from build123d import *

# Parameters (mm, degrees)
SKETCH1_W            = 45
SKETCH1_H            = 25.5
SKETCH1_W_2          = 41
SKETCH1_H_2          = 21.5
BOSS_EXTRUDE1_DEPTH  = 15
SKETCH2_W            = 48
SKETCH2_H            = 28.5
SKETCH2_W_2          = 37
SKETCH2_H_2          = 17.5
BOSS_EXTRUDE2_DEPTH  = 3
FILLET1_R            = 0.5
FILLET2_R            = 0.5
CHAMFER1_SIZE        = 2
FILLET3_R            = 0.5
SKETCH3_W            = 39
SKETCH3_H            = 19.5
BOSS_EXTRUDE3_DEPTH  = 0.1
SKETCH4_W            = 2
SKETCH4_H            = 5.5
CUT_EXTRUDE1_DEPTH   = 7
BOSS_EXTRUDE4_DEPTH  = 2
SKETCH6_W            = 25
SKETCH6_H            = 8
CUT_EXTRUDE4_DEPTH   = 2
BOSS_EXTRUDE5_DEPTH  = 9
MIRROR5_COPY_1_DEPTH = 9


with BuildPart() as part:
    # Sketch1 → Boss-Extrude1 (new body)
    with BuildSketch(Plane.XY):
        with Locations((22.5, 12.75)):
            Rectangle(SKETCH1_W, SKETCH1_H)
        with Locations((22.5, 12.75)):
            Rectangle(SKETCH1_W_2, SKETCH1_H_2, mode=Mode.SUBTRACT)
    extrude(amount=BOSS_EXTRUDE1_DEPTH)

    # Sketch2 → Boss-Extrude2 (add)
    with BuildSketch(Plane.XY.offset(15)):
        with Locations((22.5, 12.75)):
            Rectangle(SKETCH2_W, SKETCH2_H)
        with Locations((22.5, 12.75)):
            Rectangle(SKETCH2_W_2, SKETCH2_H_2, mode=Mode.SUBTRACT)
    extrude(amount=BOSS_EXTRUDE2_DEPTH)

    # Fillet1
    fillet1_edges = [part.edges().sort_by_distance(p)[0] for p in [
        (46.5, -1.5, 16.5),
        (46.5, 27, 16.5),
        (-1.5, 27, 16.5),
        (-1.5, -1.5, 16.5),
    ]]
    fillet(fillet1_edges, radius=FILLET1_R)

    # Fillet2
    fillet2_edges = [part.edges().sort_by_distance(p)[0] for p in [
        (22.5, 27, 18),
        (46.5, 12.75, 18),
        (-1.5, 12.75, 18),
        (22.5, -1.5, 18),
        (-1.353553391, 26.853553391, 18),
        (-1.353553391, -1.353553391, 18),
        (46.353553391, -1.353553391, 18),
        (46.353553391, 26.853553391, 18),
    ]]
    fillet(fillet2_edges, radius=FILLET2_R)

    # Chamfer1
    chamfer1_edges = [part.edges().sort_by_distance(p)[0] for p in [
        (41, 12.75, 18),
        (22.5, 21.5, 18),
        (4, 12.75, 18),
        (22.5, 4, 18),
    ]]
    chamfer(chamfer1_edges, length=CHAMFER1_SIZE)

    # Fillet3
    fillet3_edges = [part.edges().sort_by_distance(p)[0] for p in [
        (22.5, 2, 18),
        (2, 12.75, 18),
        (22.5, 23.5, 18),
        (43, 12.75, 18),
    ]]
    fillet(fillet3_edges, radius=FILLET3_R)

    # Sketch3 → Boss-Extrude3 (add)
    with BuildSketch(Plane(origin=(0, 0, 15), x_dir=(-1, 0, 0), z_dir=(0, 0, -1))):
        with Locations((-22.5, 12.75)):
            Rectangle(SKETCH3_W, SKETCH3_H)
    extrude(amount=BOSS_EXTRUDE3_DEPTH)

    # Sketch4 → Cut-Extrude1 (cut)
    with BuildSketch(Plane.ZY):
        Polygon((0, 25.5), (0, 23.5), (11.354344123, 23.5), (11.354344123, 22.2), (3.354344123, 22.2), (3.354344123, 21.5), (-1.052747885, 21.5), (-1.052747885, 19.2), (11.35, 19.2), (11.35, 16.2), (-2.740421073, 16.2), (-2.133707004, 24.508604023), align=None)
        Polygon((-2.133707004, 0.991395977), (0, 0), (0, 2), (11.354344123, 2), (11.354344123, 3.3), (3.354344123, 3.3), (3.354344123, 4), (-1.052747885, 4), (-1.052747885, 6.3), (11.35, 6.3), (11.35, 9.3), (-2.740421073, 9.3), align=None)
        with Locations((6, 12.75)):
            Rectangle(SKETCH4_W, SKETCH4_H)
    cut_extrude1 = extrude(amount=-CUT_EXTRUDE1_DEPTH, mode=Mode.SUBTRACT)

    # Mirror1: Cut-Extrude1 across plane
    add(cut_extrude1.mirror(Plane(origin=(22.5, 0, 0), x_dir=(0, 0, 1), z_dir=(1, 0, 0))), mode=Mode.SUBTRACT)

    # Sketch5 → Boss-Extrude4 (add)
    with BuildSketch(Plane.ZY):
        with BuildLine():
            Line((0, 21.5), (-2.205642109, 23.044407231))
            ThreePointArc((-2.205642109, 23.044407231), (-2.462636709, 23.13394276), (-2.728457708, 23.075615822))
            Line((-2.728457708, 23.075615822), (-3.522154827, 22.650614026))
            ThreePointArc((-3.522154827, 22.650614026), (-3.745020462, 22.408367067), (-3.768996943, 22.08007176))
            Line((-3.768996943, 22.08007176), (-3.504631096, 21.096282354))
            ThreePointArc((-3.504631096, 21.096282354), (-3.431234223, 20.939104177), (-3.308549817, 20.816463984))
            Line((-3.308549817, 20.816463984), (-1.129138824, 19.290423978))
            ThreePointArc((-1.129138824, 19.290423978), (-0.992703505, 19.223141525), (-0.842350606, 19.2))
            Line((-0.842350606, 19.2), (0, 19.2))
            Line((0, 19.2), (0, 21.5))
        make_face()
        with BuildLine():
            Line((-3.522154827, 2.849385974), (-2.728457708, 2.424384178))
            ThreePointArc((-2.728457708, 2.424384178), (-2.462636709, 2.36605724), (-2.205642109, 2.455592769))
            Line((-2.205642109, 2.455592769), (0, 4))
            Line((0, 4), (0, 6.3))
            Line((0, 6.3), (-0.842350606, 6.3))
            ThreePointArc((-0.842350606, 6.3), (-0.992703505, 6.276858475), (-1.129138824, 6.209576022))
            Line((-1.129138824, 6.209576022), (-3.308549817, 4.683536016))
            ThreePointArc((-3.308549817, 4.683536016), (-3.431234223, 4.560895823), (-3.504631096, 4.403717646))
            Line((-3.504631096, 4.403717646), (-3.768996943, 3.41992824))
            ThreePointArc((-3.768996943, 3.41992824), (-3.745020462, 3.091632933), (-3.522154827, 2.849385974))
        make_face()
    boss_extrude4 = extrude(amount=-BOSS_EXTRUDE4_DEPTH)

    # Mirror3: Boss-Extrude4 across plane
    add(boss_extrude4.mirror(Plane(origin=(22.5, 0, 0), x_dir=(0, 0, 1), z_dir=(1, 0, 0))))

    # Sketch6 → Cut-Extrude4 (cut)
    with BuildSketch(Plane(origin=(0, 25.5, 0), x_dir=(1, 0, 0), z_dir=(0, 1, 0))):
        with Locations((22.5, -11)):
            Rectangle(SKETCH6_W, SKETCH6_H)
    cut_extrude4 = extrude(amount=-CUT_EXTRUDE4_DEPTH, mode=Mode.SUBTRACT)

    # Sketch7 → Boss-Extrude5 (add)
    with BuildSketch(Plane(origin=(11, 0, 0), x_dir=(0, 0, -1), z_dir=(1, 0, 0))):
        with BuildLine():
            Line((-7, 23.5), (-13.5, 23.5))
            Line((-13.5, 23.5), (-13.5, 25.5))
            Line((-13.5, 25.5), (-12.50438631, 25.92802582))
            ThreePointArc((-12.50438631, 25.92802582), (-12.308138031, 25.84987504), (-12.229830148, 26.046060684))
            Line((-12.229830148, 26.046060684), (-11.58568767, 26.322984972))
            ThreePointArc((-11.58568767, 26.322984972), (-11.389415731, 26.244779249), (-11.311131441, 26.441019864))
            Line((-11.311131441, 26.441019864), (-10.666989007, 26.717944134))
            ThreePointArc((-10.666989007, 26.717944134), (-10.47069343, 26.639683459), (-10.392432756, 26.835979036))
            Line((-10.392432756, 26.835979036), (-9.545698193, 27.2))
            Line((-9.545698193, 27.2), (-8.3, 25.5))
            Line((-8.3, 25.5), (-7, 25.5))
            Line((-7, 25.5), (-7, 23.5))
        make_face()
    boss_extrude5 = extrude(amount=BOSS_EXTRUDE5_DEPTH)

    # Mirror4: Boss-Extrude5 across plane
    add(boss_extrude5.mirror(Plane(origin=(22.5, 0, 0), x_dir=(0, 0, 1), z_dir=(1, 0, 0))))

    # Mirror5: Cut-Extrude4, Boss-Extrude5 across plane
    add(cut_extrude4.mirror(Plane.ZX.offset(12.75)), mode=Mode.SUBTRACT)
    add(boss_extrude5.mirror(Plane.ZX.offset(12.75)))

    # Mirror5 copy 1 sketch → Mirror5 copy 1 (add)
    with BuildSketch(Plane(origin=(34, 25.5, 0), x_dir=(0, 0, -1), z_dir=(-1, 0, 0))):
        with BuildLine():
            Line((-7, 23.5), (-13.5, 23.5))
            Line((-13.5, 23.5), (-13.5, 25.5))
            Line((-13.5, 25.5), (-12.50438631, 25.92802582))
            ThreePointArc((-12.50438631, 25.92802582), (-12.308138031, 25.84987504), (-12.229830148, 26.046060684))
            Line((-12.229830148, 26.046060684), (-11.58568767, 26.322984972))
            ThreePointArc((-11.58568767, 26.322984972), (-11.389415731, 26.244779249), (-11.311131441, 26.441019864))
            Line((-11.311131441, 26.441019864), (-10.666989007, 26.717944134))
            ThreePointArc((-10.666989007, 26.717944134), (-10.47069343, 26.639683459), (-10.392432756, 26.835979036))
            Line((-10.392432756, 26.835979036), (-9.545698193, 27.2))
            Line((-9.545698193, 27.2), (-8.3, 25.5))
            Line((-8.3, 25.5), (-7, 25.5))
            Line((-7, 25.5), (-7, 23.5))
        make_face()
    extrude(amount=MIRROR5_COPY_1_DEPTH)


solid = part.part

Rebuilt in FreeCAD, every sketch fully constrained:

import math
import FreeCAD as App
import Part
import Sketcher

V = App.Vector
Q = App.Units.Quantity


def edges_at(feature, points):
    """Names of the edges that pass closest to the given points."""
    edges = feature.Shape.Edges
    near = lambda p: min(range(len(edges)), key=lambda i: edges[i].distToShape(Part.Vertex(*p))[0])
    return sorted({f"Edge{near(p) + 1}" for p in points})

doc = App.newDocument("Part")
body = doc.addObject("PartDesign::Body", "Body")

# Sketch on XY plane
sketch1 = body.newObject("Sketcher::SketchObject", "Sketch")
sketch1.AttachmentSupport = (doc.getObject("XY_Plane"), [""])
sketch1.MapMode = "FlatFace"
sketch1.addGeometry(Part.LineSegment(V(0, 25.5, 0), V(0, 0, 0)), False)
sketch1.addGeometry(Part.LineSegment(V(0, 0, 0), V(45, 0, 0)), False)
sketch1.addGeometry(Part.LineSegment(V(45, 0, 0), V(45, 25.5, 0)), False)
sketch1.addGeometry(Part.LineSegment(V(45, 25.5, 0), V(0, 25.5, 0)), False)
sketch1.addGeometry(Part.LineSegment(V(43, 2, 0), V(2, 2, 0)), False)
sketch1.addGeometry(Part.LineSegment(V(2, 2, 0), V(2, 23.5, 0)), False)
sketch1.addGeometry(Part.LineSegment(V(2, 23.5, 0), V(43, 23.5, 0)), False)
sketch1.addGeometry(Part.LineSegment(V(43, 23.5, 0), V(43, 2, 0)), False)
sketch1.addConstraint(Sketcher.Constraint("Coincident", 0, 2, 1, 1))
sketch1.addConstraint(Sketcher.Constraint("Coincident", 1, 2, 2, 1))
sketch1.addConstraint(Sketcher.Constraint("Coincident", 2, 2, 3, 1))
sketch1.addConstraint(Sketcher.Constraint("Coincident", 3, 2, 0, 1))
sketch1.addConstraint(Sketcher.Constraint("Coincident", 4, 2, 5, 1))
sketch1.addConstraint(Sketcher.Constraint("Coincident", 5, 2, 6, 1))
sketch1.addConstraint(Sketcher.Constraint("Coincident", 6, 2, 7, 1))
sketch1.addConstraint(Sketcher.Constraint("Coincident", 7, 2, 4, 1))
sketch1.addConstraint(Sketcher.Constraint("Vertical", 0))
sketch1.addConstraint(Sketcher.Constraint("Horizontal", 1))
sketch1.addConstraint(Sketcher.Constraint("Vertical", 2))
sketch1.addConstraint(Sketcher.Constraint("Horizontal", 3))
sketch1.addConstraint(Sketcher.Constraint("Horizontal", 4))
sketch1.addConstraint(Sketcher.Constraint("Vertical", 5))
sketch1.addConstraint(Sketcher.Constraint("Horizontal", 6))
sketch1.addConstraint(Sketcher.Constraint("Vertical", 7))
sketch1.addConstraint(Sketcher.Constraint("Coincident", 0, 2, -1, 1))
sketch1.addConstraint(Sketcher.Constraint("DistanceX", 1, 1, 1, 2, Q("45 mm")))
sketch1.addConstraint(Sketcher.Constraint("DistanceX", 4, 2, 4, 1, Q("41 mm")))
sketch1.addConstraint(Sketcher.Constraint("DistanceY", 0, 2, 0, 1, Q("25.5 mm")))
sketch1.addConstraint(Sketcher.Constraint("DistanceY", 5, 1, 5, 2, Q("21.5 mm")))
sketch1.addConstraint(Sketcher.Constraint("DistanceX", -1, 1, 4, 2, Q("2 mm")))
sketch1.addConstraint(Sketcher.Constraint("DistanceY", -1, 1, 4, 2, Q("2 mm")))
pad1 = body.newObject("PartDesign::Pad", "Pad")
pad1.Profile = sketch1
pad1.Length = 15

# Sketch on XY plane
sketch2 = body.newObject("Sketcher::SketchObject", "Sketch001")
sketch2.AttachmentSupport = (doc.getObject("XY_Plane"), [""])
sketch2.MapMode = "FlatFace"
sketch2.AttachmentOffset = App.Placement(V(0, 0, 15), App.Rotation())
sketch2.addGeometry(Part.LineSegment(V(-1.5, 27, 0), V(-1.5, -1.5, 0)), False)
sketch2.addGeometry(Part.LineSegment(V(-1.5, -1.5, 0), V(46.5, -1.5, 0)), False)
sketch2.addGeometry(Part.LineSegment(V(46.5, -1.5, 0), V(46.5, 27, 0)), False)
sketch2.addGeometry(Part.LineSegment(V(46.5, 27, 0), V(-1.5, 27, 0)), False)
sketch2.addGeometry(Part.LineSegment(V(41, 4, 0), V(4, 4, 0)), False)
sketch2.addGeometry(Part.LineSegment(V(4, 4, 0), V(4, 21.5, 0)), False)
sketch2.addGeometry(Part.LineSegment(V(4, 21.5, 0), V(41, 21.5, 0)), False)
sketch2.addGeometry(Part.LineSegment(V(41, 21.5, 0), V(41, 4, 0)), False)
sketch2.addConstraint(Sketcher.Constraint("Coincident", 0, 2, 1, 1))
sketch2.addConstraint(Sketcher.Constraint("Coincident", 1, 2, 2, 1))
sketch2.addConstraint(Sketcher.Constraint("Coincident", 2, 2, 3, 1))
sketch2.addConstraint(Sketcher.Constraint("Coincident", 3, 2, 0, 1))
sketch2.addConstraint(Sketcher.Constraint("Coincident", 4, 2, 5, 1))
sketch2.addConstraint(Sketcher.Constraint("Coincident", 5, 2, 6, 1))
sketch2.addConstraint(Sketcher.Constraint("Coincident", 6, 2, 7, 1))
sketch2.addConstraint(Sketcher.Constraint("Coincident", 7, 2, 4, 1))
sketch2.addConstraint(Sketcher.Constraint("Vertical", 0))
sketch2.addConstraint(Sketcher.Constraint("Horizontal", 1))
sketch2.addConstraint(Sketcher.Constraint("Vertical", 2))
sketch2.addConstraint(Sketcher.Constraint("Horizontal", 3))
sketch2.addConstraint(Sketcher.Constraint("Horizontal", 4))
sketch2.addConstraint(Sketcher.Constraint("Vertical", 5))
sketch2.addConstraint(Sketcher.Constraint("Horizontal", 6))
sketch2.addConstraint(Sketcher.Constraint("Vertical", 7))
sketch2.addConstraint(Sketcher.Constraint("DistanceX", 1, 1, 1, 2, Q("48 mm")))
sketch2.addConstraint(Sketcher.Constraint("DistanceX", 4, 2, 4, 1, Q("37 mm")))
sketch2.addConstraint(Sketcher.Constraint("DistanceY", 0, 2, 0, 1, Q("28.5 mm")))
sketch2.addConstraint(Sketcher.Constraint("DistanceY", 5, 1, 5, 2, Q("17.5 mm")))
sketch2.addConstraint(Sketcher.Constraint("DistanceY", -1, 1, 2, 2, Q("27 mm")))
sketch2.addConstraint(Sketcher.Constraint("DistanceX", -1, 1, 4, 2, Q("4 mm")))
sketch2.addConstraint(Sketcher.Constraint("DistanceY", -1, 1, 4, 2, Q("4 mm")))
sketch2.addConstraint(Sketcher.Constraint("DistanceX", 0, 2, -1, 1, Q("1.5 mm")))
pad2 = body.newObject("PartDesign::Pad", "Pad001")
pad2.Profile = sketch2
pad2.Length = 3
doc.recompute()

fillet = body.newObject("PartDesign::Fillet", "Fillet")
fillet.Base = (pad2, edges_at(pad2, [
    (46.5, -1.5, 16.5),
    (46.5, 27, 16.5),
    (-1.5, 27, 16.5),
    (-1.5, -1.5, 16.5),
]))
fillet.Radius = 0.5
doc.recompute()

fillet2 = body.newObject("PartDesign::Fillet", "Fillet001")
fillet2.Base = (fillet, edges_at(fillet, [
    (22.5, 27, 18),
    (46.5, 12.75, 18),
    (-1.5, 12.75, 18),
    (22.5, -1.5, 18),
    (-1.354, 26.854, 18),
    (-1.354, -1.354, 18),
    (46.354, -1.354, 18),
    (46.354, 26.854, 18),
]))
fillet2.Radius = 0.5
doc.recompute()

chamfer = body.newObject("PartDesign::Chamfer", "Chamfer")
chamfer.Base = (fillet2, edges_at(fillet2, [
    (41, 12.75, 18),
    (22.5, 21.5, 18),
    (4, 12.75, 18),
    (22.5, 4, 18),
]))
chamfer.Size = 2
doc.recompute()

fillet3 = body.newObject("PartDesign::Fillet", "Fillet002")
fillet3.Base = (chamfer, edges_at(chamfer, [
    (22.5, 2, 18),
    (2, 12.75, 18),
    (22.5, 23.5, 18),
    (43, 12.75, 18),
]))
fillet3.Radius = 0.5

# Sketch on XY plane
sketch3 = body.newObject("Sketcher::SketchObject", "Sketch002")
sketch3.AttachmentSupport = (doc.getObject("XY_Plane"), [""])
sketch3.MapMode = "FlatFace"
sketch3.AttachmentOffset = App.Placement(V(0, 0, 15), App.Rotation())
sketch3.addGeometry(Part.LineSegment(V(42, 22.5, 0), V(42, 3, 0)), False)
sketch3.addGeometry(Part.LineSegment(V(42, 3, 0), V(3, 3, 0)), False)
sketch3.addGeometry(Part.LineSegment(V(3, 3, 0), V(3, 22.5, 0)), False)
sketch3.addGeometry(Part.LineSegment(V(3, 22.5, 0), V(42, 22.5, 0)), False)
sketch3.addConstraint(Sketcher.Constraint("Coincident", 0, 2, 1, 1))
sketch3.addConstraint(Sketcher.Constraint("Coincident", 1, 2, 2, 1))
sketch3.addConstraint(Sketcher.Constraint("Coincident", 2, 2, 3, 1))
sketch3.addConstraint(Sketcher.Constraint("Coincident", 3, 2, 0, 1))
sketch3.addConstraint(Sketcher.Constraint("Vertical", 0))
sketch3.addConstraint(Sketcher.Constraint("Horizontal", 1))
sketch3.addConstraint(Sketcher.Constraint("Vertical", 2))
sketch3.addConstraint(Sketcher.Constraint("Horizontal", 3))
sketch3.addConstraint(Sketcher.Constraint("DistanceX", 1, 2, 1, 1, Q("39 mm")))
sketch3.addConstraint(Sketcher.Constraint("DistanceY", 0, 2, 0, 1, Q("19.5 mm")))
sketch3.addConstraint(Sketcher.Constraint("DistanceX", -1, 1, 0, 2, Q("42 mm")))
sketch3.addConstraint(Sketcher.Constraint("DistanceY", -1, 1, 0, 2, Q("3 mm")))
pad3 = body.newObject("PartDesign::Pad", "Pad002")
pad3.Profile = sketch3
pad3.Length = 0.1
pad3.Reversed = True

# Sketch on YZ plane
sketch4 = body.newObject("Sketcher::SketchObject", "Sketch003")
sketch4.AttachmentSupport = (doc.getObject("YZ_Plane"), [""])
sketch4.MapMode = "FlatFace"
sketch4.addGeometry(Part.LineSegment(V(23.5, 0, 0), V(25.5, 0, 0)), False)
sketch4.addGeometry(Part.LineSegment(V(25.5, 0, 0), V(24.508604, -2.133707, 0)), False)
sketch4.addGeometry(Part.LineSegment(V(24.508604, -2.133707, 0), V(16.2, -2.740421, 0)), False)
sketch4.addGeometry(Part.LineSegment(V(16.2, -2.740421, 0), V(16.2, 11.35, 0)), False)
sketch4.addGeometry(Part.LineSegment(V(16.2, 11.35, 0), V(19.2, 11.35, 0)), False)
sketch4.addGeometry(Part.LineSegment(V(19.2, 11.35, 0), V(19.2, -1.052748, 0)), False)
sketch4.addGeometry(Part.LineSegment(V(19.2, -1.052748, 0), V(21.5, -1.052748, 0)), False)
sketch4.addGeometry(Part.LineSegment(V(21.5, -1.052748, 0), V(21.5, 3.354344, 0)), False)
sketch4.addGeometry(Part.LineSegment(V(21.5, 3.354344, 0), V(22.2, 3.354344, 0)), False)
sketch4.addGeometry(Part.LineSegment(V(22.2, 3.354344, 0), V(22.2, 11.354344, 0)), False)
sketch4.addGeometry(Part.LineSegment(V(22.2, 11.354344, 0), V(23.5, 11.354344, 0)), False)
sketch4.addGeometry(Part.LineSegment(V(23.5, 11.354344, 0), V(23.5, 0, 0)), False)
sketch4.addGeometry(Part.LineSegment(V(0.991396, -2.133707, 0), V(0, 0, 0)), False)
sketch4.addGeometry(Part.LineSegment(V(0, 0, 0), V(2, 0, 0)), False)
sketch4.addGeometry(Part.LineSegment(V(2, 0, 0), V(2, 11.354344, 0)), False)
sketch4.addGeometry(Part.LineSegment(V(2, 11.354344, 0), V(3.3, 11.354344, 0)), False)
sketch4.addGeometry(Part.LineSegment(V(3.3, 11.354344, 0), V(3.3, 3.354344, 0)), False)
sketch4.addGeometry(Part.LineSegment(V(3.3, 3.354344, 0), V(4, 3.354344, 0)), False)
sketch4.addGeometry(Part.LineSegment(V(4, 3.354344, 0), V(4, -1.052748, 0)), False)
sketch4.addGeometry(Part.LineSegment(V(4, -1.052748, 0), V(6.3, -1.052748, 0)), False)
sketch4.addGeometry(Part.LineSegment(V(6.3, -1.052748, 0), V(6.3, 11.35, 0)), False)
sketch4.addGeometry(Part.LineSegment(V(6.3, 11.35, 0), V(9.3, 11.35, 0)), False)
sketch4.addGeometry(Part.LineSegment(V(9.3, 11.35, 0), V(9.3, -2.740421, 0)), False)
sketch4.addGeometry(Part.LineSegment(V(9.3, -2.740421, 0), V(0.991396, -2.133707, 0)), False)
sketch4.addGeometry(Part.LineSegment(V(15.5, 5, 0), V(10, 5, 0)), False)
sketch4.addGeometry(Part.LineSegment(V(10, 5, 0), V(10, 7, 0)), False)
sketch4.addGeometry(Part.LineSegment(V(10, 7, 0), V(15.5, 7, 0)), False)
sketch4.addGeometry(Part.LineSegment(V(15.5, 7, 0), V(15.5, 5, 0)), False)
sketch4.addConstraint(Sketcher.Constraint("Coincident", 0, 2, 1, 1))
sketch4.addConstraint(Sketcher.Constraint("Coincident", 1, 2, 2, 1))
sketch4.addConstraint(Sketcher.Constraint("Coincident", 2, 2, 3, 1))
sketch4.addConstraint(Sketcher.Constraint("Coincident", 3, 2, 4, 1))
sketch4.addConstraint(Sketcher.Constraint("Coincident", 4, 2, 5, 1))
sketch4.addConstraint(Sketcher.Constraint("Coincident", 5, 2, 6, 1))
sketch4.addConstraint(Sketcher.Constraint("Coincident", 6, 2, 7, 1))
sketch4.addConstraint(Sketcher.Constraint("Coincident", 7, 2, 8, 1))
sketch4.addConstraint(Sketcher.Constraint("Coincident", 8, 2, 9, 1))
sketch4.addConstraint(Sketcher.Constraint("Coincident", 9, 2, 10, 1))
sketch4.addConstraint(Sketcher.Constraint("Coincident", 10, 2, 11, 1))
sketch4.addConstraint(Sketcher.Constraint("Coincident", 11, 2, 0, 1))
sketch4.addConstraint(Sketcher.Constraint("Coincident", 12, 2, 13, 1))
sketch4.addConstraint(Sketcher.Constraint("Coincident", 13, 2, 14, 1))
sketch4.addConstraint(Sketcher.Constraint("Coincident", 14, 2, 15, 1))
sketch4.addConstraint(Sketcher.Constraint("Coincident", 15, 2, 16, 1))
sketch4.addConstraint(Sketcher.Constraint("Coincident", 16, 2, 17, 1))
sketch4.addConstraint(Sketcher.Constraint("Coincident", 17, 2, 18, 1))
sketch4.addConstraint(Sketcher.Constraint("Coincident", 18, 2, 19, 1))
sketch4.addConstraint(Sketcher.Constraint("Coincident", 19, 2, 20, 1))
sketch4.addConstraint(Sketcher.Constraint("Coincident", 20, 2, 21, 1))
sketch4.addConstraint(Sketcher.Constraint("Coincident", 21, 2, 22, 1))
sketch4.addConstraint(Sketcher.Constraint("Coincident", 22, 2, 23, 1))
sketch4.addConstraint(Sketcher.Constraint("Coincident", 23, 2, 12, 1))
sketch4.addConstraint(Sketcher.Constraint("Coincident", 24, 2, 25, 1))
sketch4.addConstraint(Sketcher.Constraint("Coincident", 25, 2, 26, 1))
sketch4.addConstraint(Sketcher.Constraint("Coincident", 26, 2, 27, 1))
sketch4.addConstraint(Sketcher.Constraint("Coincident", 27, 2, 24, 1))
sketch4.addConstraint(Sketcher.Constraint("Horizontal", 0))
sketch4.addConstraint(Sketcher.Constraint("Vertical", 3))
sketch4.addConstraint(Sketcher.Constraint("Horizontal", 4))
sketch4.addConstraint(Sketcher.Constraint("Vertical", 5))
sketch4.addConstraint(Sketcher.Constraint("Horizontal", 6))
sketch4.addConstraint(Sketcher.Constraint("Vertical", 7))
sketch4.addConstraint(Sketcher.Constraint("Horizontal", 8))
sketch4.addConstraint(Sketcher.Constraint("Vertical", 9))
sketch4.addConstraint(Sketcher.Constraint("Horizontal", 10))
sketch4.addConstraint(Sketcher.Constraint("Vertical", 11))
sketch4.addConstraint(Sketcher.Constraint("Horizontal", 13))
sketch4.addConstraint(Sketcher.Constraint("Vertical", 14))
sketch4.addConstraint(Sketcher.Constraint("Horizontal", 15))
sketch4.addConstraint(Sketcher.Constraint("Vertical", 16))
sketch4.addConstraint(Sketcher.Constraint("Horizontal", 17))
sketch4.addConstraint(Sketcher.Constraint("Vertical", 18))
sketch4.addConstraint(Sketcher.Constraint("Horizontal", 19))
sketch4.addConstraint(Sketcher.Constraint("Vertical", 20))
sketch4.addConstraint(Sketcher.Constraint("Horizontal", 21))
sketch4.addConstraint(Sketcher.Constraint("Vertical", 22))
sketch4.addConstraint(Sketcher.Constraint("Horizontal", 24))
sketch4.addConstraint(Sketcher.Constraint("Vertical", 25))
sketch4.addConstraint(Sketcher.Constraint("Horizontal", 26))
sketch4.addConstraint(Sketcher.Constraint("Vertical", 27))
sketch4.addConstraint(Sketcher.Constraint("Coincident", 12, 2, -1, 1))
sketch4.addConstraint(Sketcher.Constraint("PointOnObject", 0, 2, -1))
sketch4.addConstraint(Sketcher.Constraint("Horizontal", 10, 2, 14, 2))
sketch4.addConstraint(Sketcher.Constraint("Horizontal", 8, 2, 16, 2))
sketch4.addConstraint(Sketcher.Constraint("Horizontal", 6, 2, 18, 2))
sketch4.addConstraint(Sketcher.Constraint("Horizontal", 4, 2, 20, 2))
sketch4.addConstraint(Sketcher.Constraint("Horizontal", 2, 2, 22, 2))
sketch4.addConstraint(Sketcher.Constraint("Horizontal", 1, 2, 23, 2))
sketch4.addConstraint(Sketcher.Constraint("Equal", 0, 13))
sketch4.addConstraint(Sketcher.Constraint("Equal", 10, 15))
sketch4.addConstraint(Sketcher.Constraint("Equal", 8, 17))
sketch4.addConstraint(Sketcher.Constraint("Equal", 6, 19))
sketch4.addConstraint(Sketcher.Constraint("Equal", 4, 21))
sketch4.addConstraint(Sketcher.Constraint("Equal", 13, 25))
sketch4.addConstraint(Sketcher.Constraint("Equal", 1, 12))
sketch4.addConstraint(Sketcher.Constraint("DistanceX", 0, 1, 0, 2, Q("2 mm")))
sketch4.addConstraint(Sketcher.Constraint("DistanceX", 4, 1, 4, 2, Q("3 mm")))
sketch4.addConstraint(Sketcher.Constraint("DistanceY", 9, 1, 9, 2, Q("8 mm")))
sketch4.addConstraint(Sketcher.Constraint("DistanceX", 6, 1, 6, 2, Q("2.3 mm")))
sketch4.addConstraint(Sketcher.Constraint("DistanceX", 8, 1, 8, 2, Q("0.7 mm")))
sketch4.addConstraint(Sketcher.Constraint("DistanceX", 10, 1, 10, 2, Q("1.3 mm")))
sketch4.addConstraint(Sketcher.Constraint("DistanceX", 24, 2, 24, 1, Q("5.5 mm")))
sketch4.addConstraint(Sketcher.Constraint("DistanceX", -1, 1, 24, 2, Q("10 mm")))
sketch4.addConstraint(Sketcher.Constraint("DistanceY", -1, 1, 24, 2, Q("5 mm")))
sketch4.addConstraint(Sketcher.Constraint("DistanceX", 26, 2, 7, 2, Q("6 mm")))
sketch4.addConstraint(Sketcher.Constraint("DistanceY", -1, 1, 3, 2, Q("11.35 mm")))
sketch4.addConstraint(Sketcher.Constraint("DistanceY", 3, 1, 3, 2, Q("14.090421 mm")))
sketch4.addConstraint(Sketcher.Constraint("Distance", 1, Q("2.35278 mm")))
sketch4.addConstraint(Sketcher.Constraint("DistanceY", 5, 2, 5, 1, Q("12.402748 mm")))
sketch4.addConstraint(Sketcher.Constraint("DistanceY", 7, 1, 7, 2, Q("4.407092 mm")))
sketch4.addConstraint(Sketcher.Constraint("DistanceY", 1, 2, 5, 2, Q("1.080959 mm")))
pocket1 = body.newObject("PartDesign::Pocket", "Pocket")
pocket1.Profile = sketch4
pocket1.Length = 7
pocket1.Reversed = True
doc.recompute()

datumplane = body.newObject("PartDesign::Plane", "DatumPlane")
datumplane.AttachmentSupport = (doc.getObject("YZ_Plane"), [""])
datumplane.MapMode = "FlatFace"
datumplane.AttachmentOffset = App.Placement(V(0, 0, 22.5), App.Rotation())
mirrored = body.newObject("PartDesign::Mirrored", "Mirrored")
mirrored.Originals = [pocket1]
mirrored.MirrorPlane = (datumplane, [""])
body.Tip = mirrored

# Sketch on YZ plane
sketch5 = body.newObject("Sketcher::SketchObject", "Sketch004")
sketch5.AttachmentSupport = (doc.getObject("YZ_Plane"), [""])
sketch5.MapMode = "FlatFace"
sketch5.addGeometry(Part.LineSegment(V(21.5, 0, 0), V(23.044407, -2.205642, 0)), False)
sketch5.addGeometry(Part.ArcOfCircle(Part.Circle(V(22.634831, -2.49243, 0), V(0, 0, 1), 0.5), math.radians(-28.167759), math.radians(35)), False)
sketch5.addGeometry(Part.LineSegment(V(23.075616, -2.728458, 0), V(22.650614, -3.522155, 0)), False)
sketch5.addGeometry(Part.ArcOfCircle(Part.Circle(V(22.209829, -3.286127, 0), V(0, 0, 1), 0.5), math.radians(-105.041304), math.radians(-28.167758)), False)
sketch5.addGeometry(Part.LineSegment(V(22.080072, -3.768997, 0), V(21.096282, -3.504631, 0)), False)
sketch5.addGeometry(Part.ArcOfCircle(Part.Circle(V(21.22604, -3.021762, 0), V(0, 0, 1), 0.5), math.radians(-145), math.radians(-105.041304)), False)
sketch5.addGeometry(Part.LineSegment(V(20.816464, -3.30855, 0), V(19.290424, -1.129139, 0)), False)
sketch5.addGeometry(Part.ArcOfCircle(Part.Circle(V(19.7, -0.842351, 0), V(0, 0, 1), 0.5), math.radians(-180), math.radians(-145)), False)
sketch5.addGeometry(Part.LineSegment(V(19.2, -0.842351, 0), V(19.2, 0, 0)), False)
sketch5.addGeometry(Part.LineSegment(V(19.2, 0, 0), V(21.5, 0, 0)), False)
sketch5.addGeometry(Part.LineSegment(V(2.849386, -3.522155, 0), V(2.424384, -2.728458, 0)), False)
sketch5.addGeometry(Part.ArcOfCircle(Part.Circle(V(2.865169, -2.49243, 0), V(0, 0, 1), 0.5), math.radians(145), math.radians(208.167759)), False)
sketch5.addGeometry(Part.LineSegment(V(2.455593, -2.205642, 0), V(4, 0, 0)), False)
sketch5.addGeometry(Part.LineSegment(V(4, 0, 0), V(6.3, 0, 0)), False)
sketch5.addGeometry(Part.LineSegment(V(6.3, 0, 0), V(6.3, -0.842351, 0)), False)
sketch5.addGeometry(Part.ArcOfCircle(Part.Circle(V(5.8, -0.842351, 0), V(0, 0, 1), 0.5), math.radians(-35), math.radians(0)), False)
sketch5.addGeometry(Part.LineSegment(V(6.209576, -1.129139, 0), V(4.683536, -3.30855, 0)), False)
sketch5.addGeometry(Part.ArcOfCircle(Part.Circle(V(4.27396, -3.021762, 0), V(0, 0, 1), 0.5), math.radians(-74.958696), math.radians(-35)), False)
sketch5.addGeometry(Part.LineSegment(V(4.403718, -3.504631, 0), V(3.419928, -3.768997, 0)), False)
sketch5.addGeometry(Part.ArcOfCircle(Part.Circle(V(3.290171, -3.286127, 0), V(0, 0, 1), 0.5), math.radians(-151.832242), math.radians(-74.958696)), False)
sketch5.addConstraint(Sketcher.Constraint("Tangent", 0, 2, 1, 2))
sketch5.addConstraint(Sketcher.Constraint("Tangent", 1, 1, 2, 1))
sketch5.addConstraint(Sketcher.Constraint("Tangent", 2, 2, 3, 2))
sketch5.addConstraint(Sketcher.Constraint("Tangent", 3, 1, 4, 1))
sketch5.addConstraint(Sketcher.Constraint("Tangent", 4, 2, 5, 2))
sketch5.addConstraint(Sketcher.Constraint("Tangent", 5, 1, 6, 1))
sketch5.addConstraint(Sketcher.Constraint("Tangent", 6, 2, 7, 2))
sketch5.addConstraint(Sketcher.Constraint("Tangent", 7, 1, 8, 1))
sketch5.addConstraint(Sketcher.Constraint("Coincident", 8, 2, 9, 1))
sketch5.addConstraint(Sketcher.Constraint("Coincident", 9, 2, 0, 1))
sketch5.addConstraint(Sketcher.Constraint("Tangent", 10, 2, 11, 2))
sketch5.addConstraint(Sketcher.Constraint("Tangent", 11, 1, 12, 1))
sketch5.addConstraint(Sketcher.Constraint("Coincident", 12, 2, 13, 1))
sketch5.addConstraint(Sketcher.Constraint("Coincident", 13, 2, 14, 1))
sketch5.addConstraint(Sketcher.Constraint("Tangent", 14, 2, 15, 2))
sketch5.addConstraint(Sketcher.Constraint("Tangent", 15, 1, 16, 1))
sketch5.addConstraint(Sketcher.Constraint("Tangent", 16, 2, 17, 2))
sketch5.addConstraint(Sketcher.Constraint("Tangent", 17, 1, 18, 1))
sketch5.addConstraint(Sketcher.Constraint("Tangent", 18, 2, 19, 2))
sketch5.addConstraint(Sketcher.Constraint("Tangent", 19, 1, 10, 1))
sketch5.addConstraint(Sketcher.Constraint("Vertical", 8))
sketch5.addConstraint(Sketcher.Constraint("Horizontal", 9))
sketch5.addConstraint(Sketcher.Constraint("Horizontal", 13))
sketch5.addConstraint(Sketcher.Constraint("Vertical", 14))
sketch5.addConstraint(Sketcher.Constraint("Equal", 1, 3))
sketch5.addConstraint(Sketcher.Constraint("Equal", 3, 5))
sketch5.addConstraint(Sketcher.Constraint("Equal", 5, 7))
sketch5.addConstraint(Sketcher.Constraint("Equal", 7, 11))
sketch5.addConstraint(Sketcher.Constraint("Equal", 11, 15))
sketch5.addConstraint(Sketcher.Constraint("Equal", 15, 17))
sketch5.addConstraint(Sketcher.Constraint("Equal", 17, 19))
sketch5.addConstraint(Sketcher.Constraint("PointOnObject", 8, 2, -1))
sketch5.addConstraint(Sketcher.Constraint("PointOnObject", 12, 2, -1))
sketch5.addConstraint(Sketcher.Constraint("Parallel", 0, 6))
sketch5.addConstraint(Sketcher.Constraint("Parallel", 12, 16))
sketch5.addConstraint(Sketcher.Constraint("Horizontal", 1, 3, 11, 3))
sketch5.addConstraint(Sketcher.Constraint("Horizontal", 7, 3, 15, 3))
sketch5.addConstraint(Sketcher.Constraint("Horizontal", 5, 3, 17, 3))
sketch5.addConstraint(Sketcher.Constraint("Horizontal", 3, 3, 19, 3))
sketch5.addConstraint(Sketcher.Constraint("Horizontal", 1, 1, 10, 2))
sketch5.addConstraint(Sketcher.Constraint("Horizontal", 0, 2, 11, 1))
sketch5.addConstraint(Sketcher.Constraint("Horizontal", 4, 2, 17, 1))
sketch5.addConstraint(Sketcher.Constraint("Radius", 1, Q("0.5 mm")))
sketch5.addConstraint(Sketcher.Constraint("Angle", 0, Q("-55 deg")))
sketch5.addConstraint(Sketcher.Constraint("DistanceX", 9, 1, 9, 2, Q("2.3 mm")))
sketch5.addConstraint(Sketcher.Constraint("DistanceX", -1, 1, 12, 2, Q("4 mm")))
sketch5.addConstraint(Sketcher.Constraint("DistanceX", -1, 1, 7, 3, Q("19.7 mm")))
sketch5.addConstraint(Sketcher.Constraint("DistanceX", 3, 3, 1, 3, Q("0.425002 mm")))
sketch5.addConstraint(Sketcher.Constraint("DistanceY", 8, 1, 8, 2, Q("0.842351 mm")))
sketch5.addConstraint(Sketcher.Constraint("DistanceY", 4, 2, 1, 3, Q("1.012201 mm")))
sketch5.addConstraint(Sketcher.Constraint("DistanceY", 5, 1, 7, 1, Q("2.466199 mm")))
sketch5.addConstraint(Sketcher.Constraint("Distance", 0, Q("2.692592 mm")))
pad4 = body.newObject("PartDesign::Pad", "Pad003")
pad4.Profile = sketch5
pad4.Length = 2
doc.recompute()

datumplane2 = body.newObject("PartDesign::Plane", "DatumPlane001")
datumplane2.AttachmentSupport = (doc.getObject("YZ_Plane"), [""])
datumplane2.MapMode = "FlatFace"
datumplane2.AttachmentOffset = App.Placement(V(0, 0, 22.5), App.Rotation())
mirrored2 = body.newObject("PartDesign::Mirrored", "Mirrored001")
mirrored2.Originals = [pad4]
mirrored2.MirrorPlane = (datumplane2, [""])
body.Tip = mirrored2

# Sketch on XZ plane
sketch6 = body.newObject("Sketcher::SketchObject", "Sketch005")
sketch6.AttachmentSupport = (doc.getObject("XZ_Plane"), [""])
sketch6.MapMode = "FlatFace"
sketch6.AttachmentOffset = App.Placement(V(0, 0, -25.5), App.Rotation())
sketch6.addGeometry(Part.LineSegment(V(10, 7, 0), V(10, 15, 0)), False)
sketch6.addGeometry(Part.LineSegment(V(10, 15, 0), V(35, 15, 0)), False)
sketch6.addGeometry(Part.LineSegment(V(35, 15, 0), V(35, 7, 0)), False)
sketch6.addGeometry(Part.LineSegment(V(35, 7, 0), V(10, 7, 0)), False)
sketch6.addConstraint(Sketcher.Constraint("Coincident", 0, 2, 1, 1))
sketch6.addConstraint(Sketcher.Constraint("Coincident", 1, 2, 2, 1))
sketch6.addConstraint(Sketcher.Constraint("Coincident", 2, 2, 3, 1))
sketch6.addConstraint(Sketcher.Constraint("Coincident", 3, 2, 0, 1))
sketch6.addConstraint(Sketcher.Constraint("Vertical", 0))
sketch6.addConstraint(Sketcher.Constraint("Horizontal", 1))
sketch6.addConstraint(Sketcher.Constraint("Vertical", 2))
sketch6.addConstraint(Sketcher.Constraint("Horizontal", 3))
sketch6.addConstraint(Sketcher.Constraint("DistanceX", 1, 1, 1, 2, Q("25 mm")))
sketch6.addConstraint(Sketcher.Constraint("DistanceY", 0, 1, 0, 2, Q("8 mm")))
sketch6.addConstraint(Sketcher.Constraint("DistanceX", -1, 1, 0, 2, Q("10 mm")))
sketch6.addConstraint(Sketcher.Constraint("DistanceY", -1, 1, 0, 2, Q("15 mm")))
pocket2 = body.newObject("PartDesign::Pocket", "Pocket001")
pocket2.Profile = sketch6
pocket2.Length = 2
pocket2.Reversed = True

# Sketch on YZ plane
sketch7 = body.newObject("Sketcher::SketchObject", "Sketch006")
sketch7.AttachmentSupport = (doc.getObject("YZ_Plane"), [""])
sketch7.MapMode = "FlatFace"
sketch7.AttachmentOffset = App.Placement(V(0, 0, 11), App.Rotation())
sketch7.addGeometry(Part.LineSegment(V(23.5, 13.5, 0), V(23.5, 7, 0)), False)
sketch7.addGeometry(Part.LineSegment(V(23.5, 7, 0), V(25.5, 7, 0)), False)
sketch7.addGeometry(Part.LineSegment(V(25.5, 7, 0), V(25.5, 8.3, 0)), False)
sketch7.addGeometry(Part.LineSegment(V(25.5, 8.3, 0), V(27.2, 9.545698, 0)), False)
sketch7.addGeometry(Part.LineSegment(V(27.2, 9.545698, 0), V(26.835979, 10.392433, 0)), False)
sketch7.addGeometry(Part.ArcOfCircle(Part.Circle(V(26.776962, 10.529711, 0), V(0, 0, 1), 0.149427), math.radians(113.263427), math.radians(293.263428)), False)
sketch7.addGeometry(Part.LineSegment(V(26.717944, 10.666989, 0), V(26.44102, 11.311131, 0)), False)
sketch7.addGeometry(Part.ArcOfCircle(Part.Circle(V(26.382057, 11.448433, 0), V(0, 0, 1), 0.149427), math.radians(113.286364), math.radians(293.24049)), False)
sketch7.addGeometry(Part.LineSegment(V(26.322985, 11.585688, 0), V(26.046061, 12.22983, 0)), False)
sketch7.addGeometry(Part.ArcOfCircle(Part.Circle(V(25.987153, 12.367155, 0), V(0, 0, 1), 0.149427), math.radians(113.309302), math.radians(293.217553)), False)
sketch7.addGeometry(Part.LineSegment(V(25.928026, 12.504386, 0), V(25.5, 13.5, 0)), False)
sketch7.addGeometry(Part.LineSegment(V(25.5, 13.5, 0), V(23.5, 13.5, 0)), False)
sketch7.addConstraint(Sketcher.Constraint("Coincident", 0, 2, 1, 1))
sketch7.addConstraint(Sketcher.Constraint("Coincident", 1, 2, 2, 1))
sketch7.addConstraint(Sketcher.Constraint("Coincident", 2, 2, 3, 1))
sketch7.addConstraint(Sketcher.Constraint("Coincident", 3, 2, 4, 1))
sketch7.addConstraint(Sketcher.Constraint("Coincident", 4, 2, 5, 2))
sketch7.addConstraint(Sketcher.Constraint("Coincident", 5, 1, 6, 1))
sketch7.addConstraint(Sketcher.Constraint("Coincident", 6, 2, 7, 2))
sketch7.addConstraint(Sketcher.Constraint("Coincident", 7, 1, 8, 1))
sketch7.addConstraint(Sketcher.Constraint("Coincident", 8, 2, 9, 2))
sketch7.addConstraint(Sketcher.Constraint("Coincident", 9, 1, 10, 1))
sketch7.addConstraint(Sketcher.Constraint("Coincident", 10, 2, 11, 1))
sketch7.addConstraint(Sketcher.Constraint("Coincident", 11, 2, 0, 1))
sketch7.addConstraint(Sketcher.Constraint("Vertical", 0))
sketch7.addConstraint(Sketcher.Constraint("Horizontal", 1))
sketch7.addConstraint(Sketcher.Constraint("Vertical", 2))
sketch7.addConstraint(Sketcher.Constraint("Horizontal", 11))
sketch7.addConstraint(Sketcher.Constraint("Equal", 5, 7))
sketch7.addConstraint(Sketcher.Constraint("Equal", 7, 9))
sketch7.addConstraint(Sketcher.Constraint("Parallel", 4, 6))
sketch7.addConstraint(Sketcher.Constraint("Parallel", 6, 8))
sketch7.addConstraint(Sketcher.Constraint("Parallel", 8, 10))
sketch7.addConstraint(Sketcher.Constraint("Vertical", 2, 2, 10, 2))
sketch7.addConstraint(Sketcher.Constraint("Equal", 6, 8))
sketch7.addConstraint(Sketcher.Constraint("DistanceX", 1, 1, 1, 2, Q("2 mm")))
sketch7.addConstraint(Sketcher.Constraint("DistanceY", 0, 2, 0, 1, Q("6.5 mm")))
sketch7.addConstraint(Sketcher.Constraint("DistanceY", 2, 1, 2, 2, Q("1.3 mm")))
sketch7.addConstraint(Sketcher.Constraint("DistanceY", -1, 1, 0, 2, Q("7 mm")))
sketch7.addConstraint(Sketcher.Constraint("DistanceX", -1, 1, 0, 2, Q("23.5 mm")))
sketch7.addConstraint(Sketcher.Constraint("DistanceX", -1, 1, 3, 2, Q("27.2 mm")))
sketch7.addConstraint(Sketcher.Constraint("Radius", 5, Q("0.149427 mm")))
sketch7.addConstraint(Sketcher.Constraint("DistanceY", 4, 2, 7, 3, Q("1.056 mm")))
sketch7.addConstraint(Sketcher.Constraint("DistanceY", -1, 1, 3, 2, Q("9.545698 mm")))
sketch7.addConstraint(Sketcher.Constraint("DistanceY", 6, 2, 7, 3, Q("0.137302 mm")))
sketch7.addConstraint(Sketcher.Constraint("DistanceY", 5, 1, 7, 1, Q("0.918699 mm")))
sketch7.addConstraint(Sketcher.Constraint("DistanceY", 7, 1, 9, 1, Q("0.918699 mm")))
sketch7.addConstraint(Sketcher.Constraint("Distance", 10, Q("1.083722 mm")))
sketch7.addConstraint(Sketcher.Constraint("DistanceX", -1, 1, 5, 3, Q("26.776962 mm")))
sketch7.addConstraint(Sketcher.Constraint("DistanceY", -1, 1, 5, 3, Q("10.529711 mm")))
sketch7.addConstraint(Sketcher.Constraint("DistanceX", 9, 3, 5, 3, Q("0.789808 mm")))
pad5 = body.newObject("PartDesign::Pad", "Pad004")
pad5.Profile = sketch7
pad5.Length = 9
doc.recompute()

datumplane3 = body.newObject("PartDesign::Plane", "DatumPlane002")
datumplane3.AttachmentSupport = (doc.getObject("YZ_Plane"), [""])
datumplane3.MapMode = "FlatFace"
datumplane3.AttachmentOffset = App.Placement(V(0, 0, 22.5), App.Rotation())
mirrored3 = body.newObject("PartDesign::Mirrored", "Mirrored002")
mirrored3.Originals = [pad5]
mirrored3.MirrorPlane = (datumplane3, [""])
body.Tip = mirrored3
doc.recompute()

datumplane4 = body.newObject("PartDesign::Plane", "DatumPlane003")
datumplane4.AttachmentSupport = (doc.getObject("XZ_Plane"), [""])
datumplane4.MapMode = "FlatFace"
datumplane4.AttachmentOffset = App.Placement(V(0, 0, -12.75), App.Rotation())
mirrored4 = body.newObject("PartDesign::Mirrored", "Mirrored003")
mirrored4.Originals = [pocket2, pad5]
mirrored4.MirrorPlane = (datumplane4, [""])
body.Tip = mirrored4

# Sketch on YZ plane
sketch8 = body.newObject("Sketcher::SketchObject", "Sketch007")
sketch8.AttachmentSupport = (doc.getObject("YZ_Plane"), [""])
sketch8.MapMode = "FlatFace"
sketch8.AttachmentOffset = App.Placement(V(0, 0, 34), App.Rotation())
sketch8.addGeometry(Part.LineSegment(V(2, 13.5, 0), V(2, 7, 0)), False)
sketch8.addGeometry(Part.LineSegment(V(2, 7, 0), V(0, 7, 0)), False)
sketch8.addGeometry(Part.LineSegment(V(0, 7, 0), V(0, 8.3, 0)), False)
sketch8.addGeometry(Part.LineSegment(V(0, 8.3, 0), V(-1.7, 9.545698, 0)), False)
sketch8.addGeometry(Part.LineSegment(V(-1.7, 9.545698, 0), V(-1.335979, 10.392433, 0)), False)
sketch8.addGeometry(Part.ArcOfCircle(Part.Circle(V(-1.276962, 10.529711, 0), V(0, 0, 1), 0.149427), math.radians(-113.263428), math.radians(66.736573)), False)
sketch8.addGeometry(Part.LineSegment(V(-1.217944, 10.666989, 0), V(-0.94102, 11.311131, 0)), False)
sketch8.addGeometry(Part.ArcOfCircle(Part.Circle(V(-0.882057, 11.448433, 0), V(0, 0, 1), 0.149427), math.radians(-113.24049), math.radians(66.713636)), False)
sketch8.addGeometry(Part.LineSegment(V(-0.822985, 11.585688, 0), V(-0.546061, 12.22983, 0)), False)
sketch8.addGeometry(Part.ArcOfCircle(Part.Circle(V(-0.487153, 12.367155, 0), V(0, 0, 1), 0.149427), math.radians(-113.217553), math.radians(66.690698)), False)
sketch8.addGeometry(Part.LineSegment(V(-0.428026, 12.504386, 0), V(0, 13.5, 0)), False)
sketch8.addGeometry(Part.LineSegment(V(0, 13.5, 0), V(2, 13.5, 0)), False)
sketch8.addConstraint(Sketcher.Constraint("Coincident", 0, 2, 1, 1))
sketch8.addConstraint(Sketcher.Constraint("Coincident", 1, 2, 2, 1))
sketch8.addConstraint(Sketcher.Constraint("Coincident", 2, 2, 3, 1))
sketch8.addConstraint(Sketcher.Constraint("Coincident", 3, 2, 4, 1))
sketch8.addConstraint(Sketcher.Constraint("Coincident", 4, 2, 5, 1))
sketch8.addConstraint(Sketcher.Constraint("Coincident", 5, 2, 6, 1))
sketch8.addConstraint(Sketcher.Constraint("Coincident", 6, 2, 7, 1))
sketch8.addConstraint(Sketcher.Constraint("Coincident", 7, 2, 8, 1))
sketch8.addConstraint(Sketcher.Constraint("Coincident", 8, 2, 9, 1))
sketch8.addConstraint(Sketcher.Constraint("Coincident", 9, 2, 10, 1))
sketch8.addConstraint(Sketcher.Constraint("Coincident", 10, 2, 11, 1))
sketch8.addConstraint(Sketcher.Constraint("Coincident", 11, 2, 0, 1))
sketch8.addConstraint(Sketcher.Constraint("Vertical", 0))
sketch8.addConstraint(Sketcher.Constraint("Horizontal", 1))
sketch8.addConstraint(Sketcher.Constraint("Vertical", 2))
sketch8.addConstraint(Sketcher.Constraint("Horizontal", 11))
sketch8.addConstraint(Sketcher.Constraint("Equal", 5, 7))
sketch8.addConstraint(Sketcher.Constraint("Equal", 7, 9))
sketch8.addConstraint(Sketcher.Constraint("PointOnObject", 1, 2, -2))
sketch8.addConstraint(Sketcher.Constraint("PointOnObject", 10, 2, -2))
sketch8.addConstraint(Sketcher.Constraint("Parallel", 4, 6))
sketch8.addConstraint(Sketcher.Constraint("Parallel", 6, 8))
sketch8.addConstraint(Sketcher.Constraint("Parallel", 8, 10))
sketch8.addConstraint(Sketcher.Constraint("Equal", 6, 8))
sketch8.addConstraint(Sketcher.Constraint("DistanceX", 1, 2, 1, 1, Q("2 mm")))
sketch8.addConstraint(Sketcher.Constraint("DistanceY", 0, 2, 0, 1, Q("6.5 mm")))
sketch8.addConstraint(Sketcher.Constraint("DistanceY", 2, 1, 2, 2, Q("1.3 mm")))
sketch8.addConstraint(Sketcher.Constraint("DistanceY", -1, 1, 0, 2, Q("7 mm")))
sketch8.addConstraint(Sketcher.Constraint("DistanceX", 3, 2, -1, 1, Q("1.7 mm")))
sketch8.addConstraint(Sketcher.Constraint("Radius", 5, Q("0.149427 mm")))
sketch8.addConstraint(Sketcher.Constraint("DistanceY", 4, 2, 7, 3, Q("1.056 mm")))
sketch8.addConstraint(Sketcher.Constraint("DistanceY", -1, 1, 3, 2, Q("9.545698 mm")))
sketch8.addConstraint(Sketcher.Constraint("DistanceY", 6, 2, 7, 3, Q("0.137302 mm")))
sketch8.addConstraint(Sketcher.Constraint("DistanceY", 5, 2, 7, 2, Q("0.918699 mm")))
sketch8.addConstraint(Sketcher.Constraint("DistanceY", 7, 2, 9, 2, Q("0.918699 mm")))
sketch8.addConstraint(Sketcher.Constraint("Distance", 10, Q("1.083722 mm")))
sketch8.addConstraint(Sketcher.Constraint("DistanceX", 5, 3, -1, 1, Q("1.276962 mm")))
sketch8.addConstraint(Sketcher.Constraint("DistanceY", -1, 1, 5, 3, Q("10.529711 mm")))
sketch8.addConstraint(Sketcher.Constraint("DistanceX", 5, 3, 9, 3, Q("0.789808 mm")))
pad6 = body.newObject("PartDesign::Pad", "Pad005")
pad6.Profile = sketch8
pad6.Length = 9
pad6.Reversed = True

doc.recompute()
